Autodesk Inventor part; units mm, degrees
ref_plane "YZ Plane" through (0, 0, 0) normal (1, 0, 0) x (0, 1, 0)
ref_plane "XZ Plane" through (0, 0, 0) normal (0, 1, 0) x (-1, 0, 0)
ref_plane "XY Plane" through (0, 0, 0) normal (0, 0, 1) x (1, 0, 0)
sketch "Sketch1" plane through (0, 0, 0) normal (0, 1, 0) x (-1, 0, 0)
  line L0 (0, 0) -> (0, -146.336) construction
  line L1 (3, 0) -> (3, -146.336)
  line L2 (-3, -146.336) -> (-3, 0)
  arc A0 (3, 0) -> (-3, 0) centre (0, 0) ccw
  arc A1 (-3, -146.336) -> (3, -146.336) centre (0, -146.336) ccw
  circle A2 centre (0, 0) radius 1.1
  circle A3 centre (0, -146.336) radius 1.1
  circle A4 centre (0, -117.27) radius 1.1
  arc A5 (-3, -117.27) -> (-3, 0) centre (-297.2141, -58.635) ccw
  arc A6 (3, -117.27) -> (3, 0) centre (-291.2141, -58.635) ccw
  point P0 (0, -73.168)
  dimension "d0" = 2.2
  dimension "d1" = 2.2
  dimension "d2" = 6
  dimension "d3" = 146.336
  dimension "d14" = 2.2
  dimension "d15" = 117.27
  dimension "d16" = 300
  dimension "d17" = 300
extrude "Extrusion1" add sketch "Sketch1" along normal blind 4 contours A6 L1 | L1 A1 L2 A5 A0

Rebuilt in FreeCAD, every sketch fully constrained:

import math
import FreeCAD as App
import Part
import Sketcher

doc = App.newDocument("Part")
body = doc.addObject("PartDesign::Body", "Body")

# Sketch on XZ plane
sketch1 = body.newObject("Sketcher::SketchObject", "Sketch")
sketch1.AttachmentSupport = (doc.getObject("XZ_Plane"), [""])
sketch1.MapMode = "FlatFace"
sketch1.addGeometry([
    Part.ArcOfCircle(Part.Circle(App.Vector(291.2, -58.6, 0), App.Vector(0, 0, 1), 300), math.radians(169), math.radians(191)),  # 0
    Part.ArcOfCircle(Part.Circle(App.Vector(0, 0, 0), App.Vector(0, 0, 1), 3), math.radians(0), math.radians(180)),  # 1
    Part.ArcOfCircle(Part.Circle(App.Vector(297.2, -58.6, 0), App.Vector(0, 0, 1), 300), math.radians(169), math.radians(191)),  # 2
    Part.LineSegment(App.Vector(3, -117.3, 0), App.Vector(3, -146.3, 0)),  # 3
    Part.ArcOfCircle(Part.Circle(App.Vector(0, -146.3, 0), App.Vector(0, 0, 1), 3), math.radians(180), math.radians(360)),  # 4
    Part.LineSegment(App.Vector(-3, -146.3, 0), App.Vector(-3, -117.3, 0)),  # 5
    Part.Circle(App.Vector(0, 0, 0), App.Vector(0, 0, 1), 1.1),  # 6
    Part.Circle(App.Vector(0, -146.3, 0), App.Vector(0, 0, 1), 1.1),  # 7
    Part.Circle(App.Vector(0, -117.3, 0), App.Vector(0, 0, 1), 1.1),  # 8
], False)
sketch1.addConstraint([
    Sketcher.Constraint("Coincident", 0, 1, 1, 2),
    Sketcher.Constraint("Coincident", 1, 1, 2, 1),
    Sketcher.Constraint("Coincident", 2, 2, 3, 1),
    Sketcher.Constraint("Tangent", 3, 2, 4, 2),
    Sketcher.Constraint("Tangent", 4, 1, 5, 1),
    Sketcher.Constraint("Coincident", 5, 2, 0, 2),
    Sketcher.Constraint("Vertical", 3),
    Sketcher.Constraint("Vertical", 5),
    Sketcher.Constraint("Coincident", 1, 3, -1, 1),
    Sketcher.Constraint("Coincident", 6, 3, -1, 1),
    Sketcher.Constraint("Coincident", 7, 3, 4, 3),
    Sketcher.Constraint("Equal", 0, 2),
    Sketcher.Constraint("Equal", 1, 4),
    Sketcher.Constraint("Equal", 6, 7),
    Sketcher.Constraint("Equal", 7, 8),
    Sketcher.Constraint("Symmetric", 2, 2, 5, 2, -2),
    Sketcher.Constraint("PointOnObject", 8, 3, -2),
    Sketcher.Constraint("PointOnObject", 0, 1, -1),
    Sketcher.Constraint("PointOnObject", 1, 1, -1),
    Sketcher.Constraint("Horizontal", 8, 3, 2, 2),
    Sketcher.Constraint("Radius", 0, 300.0),
    Sketcher.Constraint("Radius", 1, 3.0),
    Sketcher.Constraint("Diameter", 6, 2.2),
    Sketcher.Constraint("DistanceY", 8, 3, -1, 1, 117.27),
    Sketcher.Constraint("DistanceY", 4, 3, -1, 1, 146.336),
])
pad1 = body.newObject("PartDesign::Pad", "Pad")
pad1.Profile = sketch1
pad1.Length = 4
pad1.Reversed = True

doc.recompute()
